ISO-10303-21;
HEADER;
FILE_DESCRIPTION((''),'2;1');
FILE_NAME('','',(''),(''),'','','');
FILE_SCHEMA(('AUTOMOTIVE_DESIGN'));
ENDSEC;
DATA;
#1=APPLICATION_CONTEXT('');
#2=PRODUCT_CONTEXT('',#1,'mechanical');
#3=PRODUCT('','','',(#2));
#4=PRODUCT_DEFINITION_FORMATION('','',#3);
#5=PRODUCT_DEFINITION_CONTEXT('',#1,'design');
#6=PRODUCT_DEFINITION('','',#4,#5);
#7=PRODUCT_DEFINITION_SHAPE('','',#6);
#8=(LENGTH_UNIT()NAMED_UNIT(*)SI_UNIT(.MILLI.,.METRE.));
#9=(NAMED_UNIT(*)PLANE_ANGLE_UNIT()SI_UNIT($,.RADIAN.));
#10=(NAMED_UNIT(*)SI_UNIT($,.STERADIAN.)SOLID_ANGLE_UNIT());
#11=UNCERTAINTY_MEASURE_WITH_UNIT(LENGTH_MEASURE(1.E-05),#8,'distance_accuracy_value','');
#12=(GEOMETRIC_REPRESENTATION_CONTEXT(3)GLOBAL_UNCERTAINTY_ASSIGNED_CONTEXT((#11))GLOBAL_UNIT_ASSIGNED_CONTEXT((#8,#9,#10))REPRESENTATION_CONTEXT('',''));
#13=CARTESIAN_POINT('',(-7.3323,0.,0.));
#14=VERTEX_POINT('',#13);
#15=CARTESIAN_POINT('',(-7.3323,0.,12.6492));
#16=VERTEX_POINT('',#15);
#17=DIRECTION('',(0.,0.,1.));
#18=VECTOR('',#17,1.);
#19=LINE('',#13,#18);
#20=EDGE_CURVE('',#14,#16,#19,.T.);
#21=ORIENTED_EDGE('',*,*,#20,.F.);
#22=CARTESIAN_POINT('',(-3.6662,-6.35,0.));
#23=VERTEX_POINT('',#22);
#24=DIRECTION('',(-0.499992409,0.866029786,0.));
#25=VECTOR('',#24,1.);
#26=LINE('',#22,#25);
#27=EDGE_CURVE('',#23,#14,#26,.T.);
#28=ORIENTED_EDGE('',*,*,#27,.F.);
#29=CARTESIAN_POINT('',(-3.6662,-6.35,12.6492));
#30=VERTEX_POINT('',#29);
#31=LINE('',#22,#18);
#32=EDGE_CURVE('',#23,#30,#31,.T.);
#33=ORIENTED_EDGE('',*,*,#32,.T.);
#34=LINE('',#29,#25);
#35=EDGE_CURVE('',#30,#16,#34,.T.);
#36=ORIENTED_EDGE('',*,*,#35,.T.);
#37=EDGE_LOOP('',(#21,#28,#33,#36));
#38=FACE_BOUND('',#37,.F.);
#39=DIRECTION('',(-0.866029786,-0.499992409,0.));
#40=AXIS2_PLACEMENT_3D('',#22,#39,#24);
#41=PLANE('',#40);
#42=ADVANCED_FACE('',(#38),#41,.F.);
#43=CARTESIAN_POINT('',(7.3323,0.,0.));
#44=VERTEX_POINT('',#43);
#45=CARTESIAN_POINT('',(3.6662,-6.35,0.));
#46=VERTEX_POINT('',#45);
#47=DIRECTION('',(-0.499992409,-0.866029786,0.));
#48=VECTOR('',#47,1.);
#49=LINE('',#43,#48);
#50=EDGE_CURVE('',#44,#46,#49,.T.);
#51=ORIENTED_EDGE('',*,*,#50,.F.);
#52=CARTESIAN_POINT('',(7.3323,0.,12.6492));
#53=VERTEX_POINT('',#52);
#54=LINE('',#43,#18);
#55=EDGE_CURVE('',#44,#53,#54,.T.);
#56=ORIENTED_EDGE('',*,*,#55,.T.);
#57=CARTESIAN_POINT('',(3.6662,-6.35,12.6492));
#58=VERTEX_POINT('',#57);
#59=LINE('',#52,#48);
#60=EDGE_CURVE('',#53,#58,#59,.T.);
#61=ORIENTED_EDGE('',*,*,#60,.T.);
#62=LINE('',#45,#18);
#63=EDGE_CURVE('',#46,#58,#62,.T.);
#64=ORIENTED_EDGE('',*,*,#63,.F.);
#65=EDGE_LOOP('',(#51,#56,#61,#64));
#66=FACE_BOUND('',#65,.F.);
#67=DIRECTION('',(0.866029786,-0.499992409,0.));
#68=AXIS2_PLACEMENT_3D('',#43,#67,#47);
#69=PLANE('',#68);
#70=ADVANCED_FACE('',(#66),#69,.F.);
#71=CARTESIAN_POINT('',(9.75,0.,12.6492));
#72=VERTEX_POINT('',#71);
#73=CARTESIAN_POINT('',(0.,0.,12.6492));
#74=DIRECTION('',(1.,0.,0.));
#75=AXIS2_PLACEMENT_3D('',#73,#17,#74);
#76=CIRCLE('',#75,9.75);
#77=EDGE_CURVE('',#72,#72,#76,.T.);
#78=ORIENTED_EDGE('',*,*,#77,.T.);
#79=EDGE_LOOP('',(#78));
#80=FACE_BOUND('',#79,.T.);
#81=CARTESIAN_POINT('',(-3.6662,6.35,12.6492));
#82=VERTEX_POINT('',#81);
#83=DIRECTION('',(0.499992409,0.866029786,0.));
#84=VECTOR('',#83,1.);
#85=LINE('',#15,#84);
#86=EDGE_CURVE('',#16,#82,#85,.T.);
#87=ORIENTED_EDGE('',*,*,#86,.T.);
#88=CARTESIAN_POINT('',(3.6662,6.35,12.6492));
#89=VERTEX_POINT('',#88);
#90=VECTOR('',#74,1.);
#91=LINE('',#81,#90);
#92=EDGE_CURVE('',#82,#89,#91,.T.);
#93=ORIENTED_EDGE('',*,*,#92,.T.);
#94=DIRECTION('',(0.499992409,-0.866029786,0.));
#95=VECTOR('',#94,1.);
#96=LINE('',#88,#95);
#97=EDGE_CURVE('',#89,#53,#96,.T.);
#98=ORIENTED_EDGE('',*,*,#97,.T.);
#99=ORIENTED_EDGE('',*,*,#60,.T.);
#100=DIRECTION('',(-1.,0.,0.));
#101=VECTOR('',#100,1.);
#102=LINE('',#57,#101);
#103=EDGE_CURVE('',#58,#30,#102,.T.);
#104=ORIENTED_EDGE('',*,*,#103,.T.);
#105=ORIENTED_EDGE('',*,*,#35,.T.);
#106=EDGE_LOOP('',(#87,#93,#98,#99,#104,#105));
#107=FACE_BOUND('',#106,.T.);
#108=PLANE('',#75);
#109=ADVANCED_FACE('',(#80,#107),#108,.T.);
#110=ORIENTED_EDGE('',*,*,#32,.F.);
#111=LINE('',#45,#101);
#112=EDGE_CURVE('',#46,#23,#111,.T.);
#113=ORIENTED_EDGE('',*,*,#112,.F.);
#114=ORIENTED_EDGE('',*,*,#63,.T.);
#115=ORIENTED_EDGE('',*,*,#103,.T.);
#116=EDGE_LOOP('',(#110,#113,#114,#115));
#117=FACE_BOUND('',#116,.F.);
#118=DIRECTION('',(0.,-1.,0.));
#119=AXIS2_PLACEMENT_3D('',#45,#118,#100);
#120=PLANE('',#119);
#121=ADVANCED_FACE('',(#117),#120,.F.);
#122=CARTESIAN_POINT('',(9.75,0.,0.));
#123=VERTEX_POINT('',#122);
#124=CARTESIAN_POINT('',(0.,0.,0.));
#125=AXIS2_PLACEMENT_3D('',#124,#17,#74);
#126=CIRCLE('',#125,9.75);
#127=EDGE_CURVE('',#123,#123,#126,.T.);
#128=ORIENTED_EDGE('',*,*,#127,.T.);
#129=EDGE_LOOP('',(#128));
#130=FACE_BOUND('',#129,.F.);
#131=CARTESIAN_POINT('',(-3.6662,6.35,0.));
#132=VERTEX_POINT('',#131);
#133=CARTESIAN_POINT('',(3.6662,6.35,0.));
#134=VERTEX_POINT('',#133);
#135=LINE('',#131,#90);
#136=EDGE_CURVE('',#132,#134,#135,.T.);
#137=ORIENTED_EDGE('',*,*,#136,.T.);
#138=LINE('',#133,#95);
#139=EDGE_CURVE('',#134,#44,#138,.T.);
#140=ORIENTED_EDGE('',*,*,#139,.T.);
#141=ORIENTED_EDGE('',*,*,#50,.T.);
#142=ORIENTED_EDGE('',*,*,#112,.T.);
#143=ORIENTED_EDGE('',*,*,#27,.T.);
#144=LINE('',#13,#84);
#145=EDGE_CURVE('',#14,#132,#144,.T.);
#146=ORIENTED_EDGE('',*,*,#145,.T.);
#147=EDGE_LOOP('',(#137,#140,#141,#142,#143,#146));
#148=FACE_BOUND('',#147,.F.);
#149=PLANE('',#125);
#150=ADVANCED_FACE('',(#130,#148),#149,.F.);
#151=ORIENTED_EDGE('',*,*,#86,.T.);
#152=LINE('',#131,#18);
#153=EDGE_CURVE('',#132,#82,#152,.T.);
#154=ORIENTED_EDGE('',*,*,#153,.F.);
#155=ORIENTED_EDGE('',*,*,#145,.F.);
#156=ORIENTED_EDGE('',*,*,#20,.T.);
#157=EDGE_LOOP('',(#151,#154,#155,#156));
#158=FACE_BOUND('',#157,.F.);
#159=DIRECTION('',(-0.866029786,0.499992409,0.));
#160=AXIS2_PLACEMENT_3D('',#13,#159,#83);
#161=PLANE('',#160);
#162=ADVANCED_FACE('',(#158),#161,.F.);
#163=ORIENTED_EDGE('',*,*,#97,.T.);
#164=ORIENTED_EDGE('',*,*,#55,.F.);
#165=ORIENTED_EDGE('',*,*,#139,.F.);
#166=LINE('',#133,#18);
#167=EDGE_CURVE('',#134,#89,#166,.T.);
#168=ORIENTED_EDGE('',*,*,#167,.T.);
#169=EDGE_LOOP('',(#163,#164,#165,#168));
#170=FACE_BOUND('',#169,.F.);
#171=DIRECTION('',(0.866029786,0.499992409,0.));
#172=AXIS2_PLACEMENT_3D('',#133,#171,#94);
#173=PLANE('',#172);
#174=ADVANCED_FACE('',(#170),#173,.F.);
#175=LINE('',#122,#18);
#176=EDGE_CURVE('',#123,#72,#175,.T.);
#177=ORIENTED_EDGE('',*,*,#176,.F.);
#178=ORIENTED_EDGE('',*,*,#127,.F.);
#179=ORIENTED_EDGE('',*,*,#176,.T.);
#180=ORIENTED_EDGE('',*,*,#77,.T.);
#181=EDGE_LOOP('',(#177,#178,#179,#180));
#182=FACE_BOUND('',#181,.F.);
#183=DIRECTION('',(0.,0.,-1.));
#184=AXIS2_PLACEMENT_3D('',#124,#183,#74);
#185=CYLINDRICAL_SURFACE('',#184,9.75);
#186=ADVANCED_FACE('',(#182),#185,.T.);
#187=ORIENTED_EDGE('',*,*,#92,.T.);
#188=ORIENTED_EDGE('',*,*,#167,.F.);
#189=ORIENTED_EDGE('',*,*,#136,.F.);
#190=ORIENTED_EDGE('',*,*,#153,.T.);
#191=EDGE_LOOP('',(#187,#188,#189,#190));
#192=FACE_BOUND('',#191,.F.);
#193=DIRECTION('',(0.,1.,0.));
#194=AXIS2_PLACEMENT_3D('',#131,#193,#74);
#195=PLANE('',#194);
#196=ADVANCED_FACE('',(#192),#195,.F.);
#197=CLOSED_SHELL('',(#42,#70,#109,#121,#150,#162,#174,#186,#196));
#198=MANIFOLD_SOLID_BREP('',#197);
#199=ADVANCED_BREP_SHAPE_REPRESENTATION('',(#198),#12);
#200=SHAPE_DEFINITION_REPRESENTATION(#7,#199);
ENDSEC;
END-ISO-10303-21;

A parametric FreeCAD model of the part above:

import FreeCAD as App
import Part
import Sketcher
Q = App.Units.Quantity


def add_polygon(sketch, points):
    """Adds a closed chain of lines whose ends are joined by coincident constraints."""
    first, n = sketch.GeometryCount, len(points)
    for a, b in zip(points, points[1:] + points[:1]):
        sketch.addGeometry(Part.LineSegment(App.Vector(*a, 0), App.Vector(*b, 0)), False)
    for i in range(n):
        sketch.addConstraint(Sketcher.Constraint("Coincident", first + i, 2, first + (i + 1) % n, 1))

doc = App.newDocument("Part")
body = doc.addObject("PartDesign::Body", "Body")

sketch1 = body.newObject("Sketcher::SketchObject", "Sketch")
sketch1.AttachmentSupport = (doc.getObject("XY_Plane"), [""])
sketch1.MapMode = "FlatFace"
sketch1.addGeometry(Part.Circle(App.Vector(0, 0, 0), App.Vector(0, 0, 1), 9.75), False)
add_polygon(sketch1, [(-3.6662, -6.35), (-7.3323, 0), (-3.6662, 6.35), (3.6662, 6.35), (7.3323, 0), (3.6662, -6.35)])
sketch1.addConstraint(Sketcher.Constraint("Horizontal", 3))
sketch1.addConstraint(Sketcher.Constraint("Horizontal", 6))
sketch1.addConstraint(Sketcher.Constraint("Coincident", 0, 3, -1, 1))
sketch1.addConstraint(Sketcher.Constraint("Symmetric", 1, 2, 4, 2, -1, 1))
sketch1.addConstraint(Sketcher.Constraint("Symmetric", 2, 2, 5, 2, -1, 1))
sketch1.addConstraint(Sketcher.Constraint("PointOnObject", 1, 2, -1))
sketch1.addConstraint(Sketcher.Constraint("Parallel", 1, 4))
sketch1.addConstraint(Sketcher.Constraint("Vertical", 3, 2, 5, 2))
sketch1.addConstraint(Sketcher.Constraint("Diameter", 0, 19.5))
sketch1.addConstraint(Sketcher.Constraint("DistanceY", 5, 2, 3, 2, 12.7))
sketch1.addConstraint(Sketcher.Constraint("Angle", 1, Q("119.9995 deg")))
sketch1.addConstraint(Sketcher.Constraint("DistanceX", 3, 1, 3, 2, 7.3324))
pad1 = body.newObject("PartDesign::Pad", "Pad")
pad1.Profile = sketch1
pad1.Length = 12.6492

doc.recompute()
